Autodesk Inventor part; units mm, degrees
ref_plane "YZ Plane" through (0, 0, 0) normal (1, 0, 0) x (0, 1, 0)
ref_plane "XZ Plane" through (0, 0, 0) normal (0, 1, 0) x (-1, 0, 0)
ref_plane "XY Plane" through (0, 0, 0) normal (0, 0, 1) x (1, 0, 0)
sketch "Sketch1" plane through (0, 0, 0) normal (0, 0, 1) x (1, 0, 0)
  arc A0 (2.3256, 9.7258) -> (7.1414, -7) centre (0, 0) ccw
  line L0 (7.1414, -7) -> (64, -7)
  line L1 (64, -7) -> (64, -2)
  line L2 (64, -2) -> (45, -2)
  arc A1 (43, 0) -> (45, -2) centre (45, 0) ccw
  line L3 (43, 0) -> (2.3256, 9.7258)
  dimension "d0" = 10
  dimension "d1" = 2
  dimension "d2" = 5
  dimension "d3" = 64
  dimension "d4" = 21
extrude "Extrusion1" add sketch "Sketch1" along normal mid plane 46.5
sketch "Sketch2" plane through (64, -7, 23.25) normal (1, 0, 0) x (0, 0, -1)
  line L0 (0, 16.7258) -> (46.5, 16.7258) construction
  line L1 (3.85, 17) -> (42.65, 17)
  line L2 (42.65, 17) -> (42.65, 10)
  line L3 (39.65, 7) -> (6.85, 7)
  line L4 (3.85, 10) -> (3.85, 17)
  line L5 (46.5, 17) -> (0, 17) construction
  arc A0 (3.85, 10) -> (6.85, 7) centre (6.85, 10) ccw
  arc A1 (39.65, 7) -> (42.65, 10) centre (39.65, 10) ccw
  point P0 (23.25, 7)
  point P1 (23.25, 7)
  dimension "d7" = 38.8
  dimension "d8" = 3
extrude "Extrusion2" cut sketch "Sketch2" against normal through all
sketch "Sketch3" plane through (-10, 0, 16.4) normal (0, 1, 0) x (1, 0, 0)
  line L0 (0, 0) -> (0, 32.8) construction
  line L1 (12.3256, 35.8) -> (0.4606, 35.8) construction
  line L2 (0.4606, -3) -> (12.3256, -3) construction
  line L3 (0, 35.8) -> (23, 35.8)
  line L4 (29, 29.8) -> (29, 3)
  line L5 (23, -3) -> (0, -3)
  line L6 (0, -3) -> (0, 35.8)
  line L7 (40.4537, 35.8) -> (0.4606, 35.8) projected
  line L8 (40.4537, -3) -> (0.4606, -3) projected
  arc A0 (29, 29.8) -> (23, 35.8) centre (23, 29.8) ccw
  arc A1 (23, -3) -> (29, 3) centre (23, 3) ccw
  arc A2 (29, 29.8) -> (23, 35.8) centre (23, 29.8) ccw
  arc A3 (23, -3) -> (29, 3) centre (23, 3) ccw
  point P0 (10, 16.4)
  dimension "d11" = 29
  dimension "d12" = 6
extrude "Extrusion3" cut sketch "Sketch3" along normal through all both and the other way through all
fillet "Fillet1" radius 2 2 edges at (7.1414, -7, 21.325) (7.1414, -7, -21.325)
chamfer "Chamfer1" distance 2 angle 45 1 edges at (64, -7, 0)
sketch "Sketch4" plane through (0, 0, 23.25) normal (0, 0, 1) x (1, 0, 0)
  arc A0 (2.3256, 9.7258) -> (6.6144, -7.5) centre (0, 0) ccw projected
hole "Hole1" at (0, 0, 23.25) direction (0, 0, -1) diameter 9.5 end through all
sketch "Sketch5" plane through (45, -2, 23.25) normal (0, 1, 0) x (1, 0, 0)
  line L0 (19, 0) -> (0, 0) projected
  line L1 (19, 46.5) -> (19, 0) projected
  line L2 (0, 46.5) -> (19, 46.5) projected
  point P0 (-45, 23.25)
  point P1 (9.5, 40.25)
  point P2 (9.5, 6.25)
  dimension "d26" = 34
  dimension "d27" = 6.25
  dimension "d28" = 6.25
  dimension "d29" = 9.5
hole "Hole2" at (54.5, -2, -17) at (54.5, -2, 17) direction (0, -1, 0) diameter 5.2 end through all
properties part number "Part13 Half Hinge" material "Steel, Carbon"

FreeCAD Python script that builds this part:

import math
import FreeCAD as App
import Part
import Sketcher
from FreeCAD import Vector


def edges_at(feature, points):
    """Names of the edges that pass closest to the given points."""
    edges = feature.Shape.Edges
    near = lambda p: min(range(len(edges)), key=lambda i: edges[i].distToShape(Part.Vertex(*p))[0])
    return sorted({f"Edge{near(p) + 1}" for p in points})

doc = App.newDocument("Part")
body = doc.addObject("PartDesign::Body", "Body")

# Sketch on XY plane
sketch1 = doc.addObject("Sketcher::SketchObject", "Sketch")
body.addObject(sketch1)
sketch1.AttachmentSupport = (doc.XY_Plane, [""])
sketch1.MapMode = "FlatFace"
sketch1.addGeometry(Part.LineSegment(Vector(43, 0, 0), Vector(2.3, 9.7, 0)), False)
sketch1.addGeometry(Part.ArcOfCircle(Part.Circle(Vector(0, 0, 0), Vector(0, 0, 1), 10), math.radians(77), math.radians(316)), False)
sketch1.addGeometry(Part.LineSegment(Vector(7.1, -7, 0), Vector(64, -7, 0)), False)
sketch1.addGeometry(Part.LineSegment(Vector(64, -7, 0), Vector(64, -2, 0)), False)
sketch1.addGeometry(Part.LineSegment(Vector(64, -2, 0), Vector(45, -2, 0)), False)
sketch1.addGeometry(Part.ArcOfCircle(Part.Circle(Vector(45, 0, 0), Vector(0, 0, 1), 2), math.radians(180), math.radians(270)), False)
sketch1.addConstraint(Sketcher.Constraint("Tangent", 0, 2, 1, 1))
sketch1.addConstraint(Sketcher.Constraint("Coincident", 1, 2, 2, 1))
sketch1.addConstraint(Sketcher.Constraint("Coincident", 2, 2, 3, 1))
sketch1.addConstraint(Sketcher.Constraint("Coincident", 3, 2, 4, 1))
sketch1.addConstraint(Sketcher.Constraint("Tangent", 4, 2, 5, 2))
sketch1.addConstraint(Sketcher.Constraint("Coincident", 5, 1, 0, 1))
sketch1.addConstraint(Sketcher.Constraint("Horizontal", 2))
sketch1.addConstraint(Sketcher.Constraint("Vertical", 3))
sketch1.addConstraint(Sketcher.Constraint("Horizontal", 4))
sketch1.addConstraint(Sketcher.Constraint("Coincident", 1, 3, -1, 1))
sketch1.addConstraint(Sketcher.Constraint("PointOnObject", 5, 3, -1))
sketch1.addConstraint(Sketcher.Constraint("PointOnObject", 5, 1, -1))
sketch1.addConstraint(Sketcher.Constraint("Radius", 1, 10.0))
sketch1.addConstraint(Sketcher.Constraint("Radius", 5, 2.0))
sketch1.addConstraint(Sketcher.Constraint("DistanceY", 3, 1, 3, 2, 5.0))
sketch1.addConstraint(Sketcher.Constraint("DistanceX", -1, 1, 2, 2, 64.0))
sketch1.addConstraint(Sketcher.Constraint("DistanceX", 5, 1, 3, 2, 21.0))
pad1 = doc.addObject("PartDesign::Pad", "Pad")
body.addObject(pad1)
pad1.Profile = sketch1
pad1.Length = 46.5
pad1.Midplane = True

# Sketch on YZ plane
sketch2 = doc.addObject("Sketcher::SketchObject", "Sketch001")
body.addObject(sketch2)
sketch2.AttachmentSupport = (doc.YZ_Plane, [""])
sketch2.MapMode = "FlatFace"
sketch2.AttachmentOffset = App.Placement(Vector(0, 0, 64), App.Rotation())
sketch2.addGeometry(Part.LineSegment(Vector(10, -19.4, 0), Vector(10, 19.4, 0)), False)
sketch2.addGeometry(Part.LineSegment(Vector(10, 19.4, 0), Vector(3, 19.4, 0)), False)
sketch2.addGeometry(Part.ArcOfCircle(Part.Circle(Vector(3, 16.4, 0), Vector(0, 0, 1), 3), math.radians(90), math.radians(180)), False)
sketch2.addGeometry(Part.LineSegment(Vector(0, 16.4, 0), Vector(0, -16.4, 0)), False)
sketch2.addGeometry(Part.ArcOfCircle(Part.Circle(Vector(3, -16.4, 0), Vector(0, 0, 1), 3), math.radians(180), math.radians(270)), False)
sketch2.addGeometry(Part.LineSegment(Vector(3, -19.4, 0), Vector(10, -19.4, 0)), False)
sketch2.addConstraint(Sketcher.Constraint("Coincident", 0, 2, 1, 1))
sketch2.addConstraint(Sketcher.Constraint("Tangent", 1, 2, 2, 1))
sketch2.addConstraint(Sketcher.Constraint("Tangent", 2, 2, 3, 1))
sketch2.addConstraint(Sketcher.Constraint("Tangent", 3, 2, 4, 1))
sketch2.addConstraint(Sketcher.Constraint("Tangent", 4, 2, 5, 1))
sketch2.addConstraint(Sketcher.Constraint("Coincident", 5, 2, 0, 1))
sketch2.addConstraint(Sketcher.Constraint("Vertical", 0))
sketch2.addConstraint(Sketcher.Constraint("Horizontal", 1))
sketch2.addConstraint(Sketcher.Constraint("Vertical", 3))
sketch2.addConstraint(Sketcher.Constraint("Horizontal", 5))
sketch2.addConstraint(Sketcher.Constraint("Equal", 2, 4))
sketch2.addConstraint(Sketcher.Constraint("Symmetric", 2, 2, 3, 2, -1, 1))
sketch2.addConstraint(Sketcher.Constraint("Radius", 2, 3.0))
sketch2.addConstraint(Sketcher.Constraint("DistanceY", 0, 1, 0, 2, 38.8))
sketch2.addConstraint(Sketcher.Constraint("DistanceX", 1, 2, 1, 1, 7.0))
pocket1 = doc.addObject("PartDesign::Pocket", "Pocket")
body.addObject(pocket1)
pocket1.Profile = sketch2
pocket1.Type = "ThroughAll"

# Sketch on XZ plane
sketch3 = doc.addObject("Sketcher::SketchObject", "Sketch002")
body.addObject(sketch3)
sketch3.AttachmentSupport = (doc.XZ_Plane, [""])
sketch3.MapMode = "FlatFace"
sketch3.addGeometry(Part.LineSegment(Vector(13, -19, 0), Vector(-10, -19, 0)), False)
sketch3.addGeometry(Part.LineSegment(Vector(-10, -19, 0), Vector(-10, 19, 0)), False)
sketch3.addGeometry(Part.LineSegment(Vector(-10, 19, 0), Vector(13, 19, 0)), False)
sketch3.addGeometry(Part.ArcOfCircle(Part.Circle(Vector(13, 13, 0), Vector(0, 0, 1), 6), math.radians(0), math.radians(90)), False)
sketch3.addGeometry(Part.LineSegment(Vector(19, 13, 0), Vector(19, -13, 0)), False)
sketch3.addGeometry(Part.ArcOfCircle(Part.Circle(Vector(13, -13, 0), Vector(0, 0, 1), 6), math.radians(-90), math.radians(0)), False)
sketch3.addConstraint(Sketcher.Constraint("Coincident", 0, 2, 1, 1))
sketch3.addConstraint(Sketcher.Constraint("Coincident", 1, 2, 2, 1))
sketch3.addConstraint(Sketcher.Constraint("Tangent", 2, 2, 3, 2))
sketch3.addConstraint(Sketcher.Constraint("Tangent", 3, 1, 4, 1))
sketch3.addConstraint(Sketcher.Constraint("Tangent", 4, 2, 5, 2))
sketch3.addConstraint(Sketcher.Constraint("Tangent", 5, 1, 0, 1))
sketch3.addConstraint(Sketcher.Constraint("Horizontal", 0))
sketch3.addConstraint(Sketcher.Constraint("Vertical", 1))
sketch3.addConstraint(Sketcher.Constraint("Horizontal", 2))
sketch3.addConstraint(Sketcher.Constraint("Vertical", 4))
sketch3.addConstraint(Sketcher.Constraint("Equal", 3, 5))
sketch3.addConstraint(Sketcher.Constraint("Radius", 3, 6.0))
sketch3.addConstraint(Sketcher.Constraint("DistanceX", 1, 2, 3, 1, 29.0))
sketch3.addConstraint(Sketcher.Constraint("DistanceY", 1, 1, 1, 2, 38.8))
sketch3.addConstraint(Sketcher.Constraint("DistanceX", -1, 1, 3, 3, 13.0))
sketch3.addConstraint(Sketcher.Constraint("DistanceY", -1, 1, 3, 3, 13.4))
pocket2 = doc.addObject("PartDesign::Pocket", "Pocket001")
body.addObject(pocket2)
pocket2.Profile = sketch3
pocket2.Type = "ThroughAll"
pocket2.Midplane = True
doc.recompute()

fillet = doc.addObject("PartDesign::Fillet", "Fillet")
body.addObject(fillet)
fillet.Base = (pocket2, edges_at(pocket2, [(7.141, -7, 21.325), (7.141, -7, -21.325)]))
fillet.Radius = 2
doc.recompute()

chamfer = doc.addObject("PartDesign::Chamfer", "Chamfer")
body.addObject(chamfer)
chamfer.Base = (fillet, edges_at(fillet, [(64, -7, 0)]))
chamfer.Size = 2

# Sketch on XY plane
sketch4 = doc.addObject("Sketcher::SketchObject", "Sketch003")
body.addObject(sketch4)
sketch4.AttachmentSupport = (doc.XY_Plane, [""])
sketch4.MapMode = "FlatFace"
sketch4.AttachmentOffset = App.Placement(Vector(0, 0, 23.25), App.Rotation())
sketch4.addGeometry(Part.Circle(Vector(0, 0, 0), Vector(0, 0, 1), 4.8), False)
sketch4.addConstraint(Sketcher.Constraint("Coincident", 0, 3, -1, 1))
sketch4.addConstraint(Sketcher.Constraint("Diameter", 0, 9.5))
doc.recompute()
hole = doc.addObject("PartDesign::Hole", "Hole")
body.addObject(hole)
hole.Profile = sketch4
hole.ThreadType = "None"
hole.Diameter = 9.5
hole.DepthType = "ThroughAll"

# Sketch on XZ plane
sketch5 = doc.addObject("Sketcher::SketchObject", "Sketch004")
body.addObject(sketch5)
sketch5.AttachmentSupport = (doc.XZ_Plane, [""])
sketch5.MapMode = "FlatFace"
sketch5.AttachmentOffset = App.Placement(Vector(0, 0, 2), App.Rotation())
sketch5.addGeometry(Part.Circle(Vector(54.5, -17, 0), Vector(0, 0, 1), 2.6), False)
sketch5.addGeometry(Part.Circle(Vector(54.5, 17, 0), Vector(0, 0, 1), 2.6), False)
sketch5.addConstraint(Sketcher.Constraint("Equal", 0, 1))
sketch5.addConstraint(Sketcher.Constraint("Symmetric", 0, 3, 1, 3, -1))
sketch5.addConstraint(Sketcher.Constraint("Diameter", 0, 5.2))
sketch5.addConstraint(Sketcher.Constraint("DistanceY", 0, 3, -1, 1, 17.0))
sketch5.addConstraint(Sketcher.Constraint("DistanceX", -1, 1, 0, 3, 54.5))
doc.recompute()
hole2 = doc.addObject("PartDesign::Hole", "Hole001")
body.addObject(hole2)
hole2.Profile = sketch5
hole2.ThreadType = "None"
hole2.Diameter = 5.2
hole2.DepthType = "ThroughAll"
hole2.Reversed = True

doc.recompute()
